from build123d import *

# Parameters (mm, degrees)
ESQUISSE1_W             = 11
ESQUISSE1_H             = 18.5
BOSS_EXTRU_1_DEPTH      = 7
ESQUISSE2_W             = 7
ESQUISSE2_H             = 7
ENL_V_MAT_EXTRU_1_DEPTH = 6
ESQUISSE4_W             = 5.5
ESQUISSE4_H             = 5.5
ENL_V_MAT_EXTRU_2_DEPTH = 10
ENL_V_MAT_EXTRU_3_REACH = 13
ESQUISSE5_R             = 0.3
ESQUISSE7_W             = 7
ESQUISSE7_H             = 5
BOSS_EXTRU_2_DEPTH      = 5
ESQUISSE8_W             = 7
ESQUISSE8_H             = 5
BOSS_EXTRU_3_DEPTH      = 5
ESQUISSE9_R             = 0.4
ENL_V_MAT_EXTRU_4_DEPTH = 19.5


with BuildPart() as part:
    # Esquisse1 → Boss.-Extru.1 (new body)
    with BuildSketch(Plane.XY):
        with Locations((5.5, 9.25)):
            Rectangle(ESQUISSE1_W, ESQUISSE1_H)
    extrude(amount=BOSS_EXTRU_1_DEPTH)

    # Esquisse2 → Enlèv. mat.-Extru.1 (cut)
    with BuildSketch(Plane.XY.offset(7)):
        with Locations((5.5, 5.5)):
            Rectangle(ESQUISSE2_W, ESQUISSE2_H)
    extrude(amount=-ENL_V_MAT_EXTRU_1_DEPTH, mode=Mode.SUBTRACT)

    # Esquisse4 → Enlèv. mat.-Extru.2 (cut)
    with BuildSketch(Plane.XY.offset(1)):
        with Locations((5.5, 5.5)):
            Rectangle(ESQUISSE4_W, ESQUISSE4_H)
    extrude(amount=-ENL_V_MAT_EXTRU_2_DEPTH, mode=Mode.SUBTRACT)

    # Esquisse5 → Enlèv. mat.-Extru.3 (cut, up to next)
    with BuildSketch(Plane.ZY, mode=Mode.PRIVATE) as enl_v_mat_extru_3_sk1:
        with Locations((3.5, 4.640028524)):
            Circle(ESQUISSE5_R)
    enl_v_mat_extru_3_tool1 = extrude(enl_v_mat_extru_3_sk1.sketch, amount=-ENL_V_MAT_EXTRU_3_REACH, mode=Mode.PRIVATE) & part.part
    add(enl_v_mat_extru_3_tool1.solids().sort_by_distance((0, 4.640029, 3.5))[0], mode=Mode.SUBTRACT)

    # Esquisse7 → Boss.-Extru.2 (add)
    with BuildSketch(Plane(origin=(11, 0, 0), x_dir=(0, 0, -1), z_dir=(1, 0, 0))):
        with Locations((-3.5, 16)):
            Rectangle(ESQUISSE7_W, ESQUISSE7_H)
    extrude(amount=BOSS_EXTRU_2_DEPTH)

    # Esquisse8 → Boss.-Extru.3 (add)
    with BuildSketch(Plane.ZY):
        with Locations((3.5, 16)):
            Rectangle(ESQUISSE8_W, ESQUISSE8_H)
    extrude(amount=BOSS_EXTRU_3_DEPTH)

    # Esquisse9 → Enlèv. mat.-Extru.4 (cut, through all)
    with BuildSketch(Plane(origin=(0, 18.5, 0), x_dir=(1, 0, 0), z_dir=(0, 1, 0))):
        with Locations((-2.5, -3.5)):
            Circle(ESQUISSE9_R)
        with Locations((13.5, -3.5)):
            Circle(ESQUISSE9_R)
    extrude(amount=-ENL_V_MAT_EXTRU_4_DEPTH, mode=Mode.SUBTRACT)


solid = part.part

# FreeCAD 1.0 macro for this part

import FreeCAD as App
import Part
import Sketcher
from FreeCAD import Vector


def add_polygon(sketch, points):
    """Adds a closed chain of lines whose ends are joined by coincident constraints."""
    first, n = sketch.GeometryCount, len(points)
    for a, b in zip(points, points[1:] + points[:1]):
        sketch.addGeometry(Part.LineSegment(App.Vector(*a, 0), App.Vector(*b, 0)), False)
    for i in range(n):
        sketch.addConstraint(Sketcher.Constraint("Coincident", first + i, 2, first + (i + 1) % n, 1))

doc = App.newDocument("Part")
params = doc.addObject("Spreadsheet::Sheet", "Params")
for row, (alias, value) in enumerate([
    ("sketch1_width", "11 mm"),
    ("sketch1_height", "18.5 mm"),
    ("pad1_length", "7 mm"),
    ("sketch2_width", "7 mm"),
    ("pocket1_length", "6 mm"),
    ("sketch3_width", "5.5 mm"),
    ("pocket2_length", "10 mm"),
    ("sketch4_diameter", "0.6 mm"),
    ("sketch5_width", "5 mm"),
    ("sketch5_height", "7 mm"),
    ("pad2_length", "5 mm"),
    ("sketch6_width", "5 mm"),
    ("sketch6_height", "7 mm"),
    ("pad3_length", "5 mm"),
    ("sketch7_diameter", "0.8 mm"),
], start=1):
    params.set(f"A{row}", alias)
    params.set(f"B{row}", "=" + value)
    params.setAlias(f"B{row}", alias)

body = doc.addObject("PartDesign::Body", "Body")

sketch1 = body.newObject("Sketcher::SketchObject", "Sketch")
sketch1.AttachmentSupport = (doc.getObject("XY_Plane"), [""])
sketch1.MapMode = "FlatFace"
add_polygon(sketch1, [(0, 18), (0, 0), (11, 0), (11, 18)])
sketch1.addConstraint(Sketcher.Constraint("Vertical", 0))
sketch1.addConstraint(Sketcher.Constraint("Horizontal", 1))
sketch1.addConstraint(Sketcher.Constraint("Vertical", 2))
sketch1.addConstraint(Sketcher.Constraint("Horizontal", 3))
sketch1.addConstraint(Sketcher.Constraint("Coincident", 0, 2, -1, 1))
sketch1.addConstraint(Sketcher.Constraint("DistanceX", 1, 1, 1, 2, 11.0))
sketch1.addConstraint(Sketcher.Constraint("DistanceY", 0, 2, 0, 1, 18.5))
sketch1.setExpression("Constraints[9]", "Params.sketch1_width")
sketch1.setExpression("Constraints[10]", "Params.sketch1_height")
pad1 = body.newObject("PartDesign::Pad", "Pad")
pad1.Profile = sketch1
pad1.setExpression("Length", "Params.pad1_length")

sketch2 = body.newObject("Sketcher::SketchObject", "Sketch001")
sketch2.AttachmentSupport = (doc.getObject("XY_Plane"), [""])
sketch2.MapMode = "FlatFace"
sketch2.AttachmentOffset = App.Placement(Vector(0, 0, 7), App.Rotation())
add_polygon(sketch2, [(2, 9), (2, 2), (9, 2), (9, 9)])
sketch2.addConstraint(Sketcher.Constraint("Vertical", 0))
sketch2.addConstraint(Sketcher.Constraint("Horizontal", 1))
sketch2.addConstraint(Sketcher.Constraint("Vertical", 2))
sketch2.addConstraint(Sketcher.Constraint("Horizontal", 3))
sketch2.addConstraint(Sketcher.Constraint("Equal", 3, 0))
sketch2.addConstraint(Sketcher.Constraint("DistanceX", 1, 1, 1, 2, 7.0))
sketch2.addConstraint(Sketcher.Constraint("DistanceX", -1, 1, 0, 2, 2.0))
sketch2.addConstraint(Sketcher.Constraint("DistanceY", -1, 1, 0, 2, 2.0))
sketch2.setExpression("Constraints[9]", "Params.sketch2_width")
pocket1 = body.newObject("PartDesign::Pocket", "Pocket")
pocket1.Profile = sketch2
pocket1.setExpression("Length", "Params.pocket1_length")

sketch3 = body.newObject("Sketcher::SketchObject", "Sketch002")
sketch3.AttachmentSupport = (doc.getObject("XY_Plane"), [""])
sketch3.MapMode = "FlatFace"
sketch3.AttachmentOffset = App.Placement(Vector(0, 0, 1), App.Rotation())
add_polygon(sketch3, [(3, 8), (3, 3), (8, 3), (8, 8)])
sketch3.addConstraint(Sketcher.Constraint("Vertical", 0))
sketch3.addConstraint(Sketcher.Constraint("Horizontal", 1))
sketch3.addConstraint(Sketcher.Constraint("Vertical", 2))
sketch3.addConstraint(Sketcher.Constraint("Horizontal", 3))
sketch3.addConstraint(Sketcher.Constraint("Equal", 3, 0))
sketch3.addConstraint(Sketcher.Constraint("DistanceX", 1, 1, 1, 2, 5.5))
sketch3.addConstraint(Sketcher.Constraint("DistanceX", -1, 1, 0, 2, 2.75))
sketch3.addConstraint(Sketcher.Constraint("DistanceY", -1, 1, 0, 2, 2.75))
sketch3.setExpression("Constraints[9]", "Params.sketch3_width")
pocket2 = body.newObject("PartDesign::Pocket", "Pocket001")
pocket2.Profile = sketch3
pocket2.setExpression("Length", "Params.pocket2_length")

sketch4 = body.newObject("Sketcher::SketchObject", "Sketch003")
sketch4.AttachmentSupport = (doc.getObject("YZ_Plane"), [""])
sketch4.MapMode = "FlatFace"
sketch4.addGeometry(Part.Circle(Vector(4.64, 3.5, 0), Vector(0, 0, 1), 0.3), False)
sketch4.addConstraint(Sketcher.Constraint("Diameter", 0, 0.6))
sketch4.addConstraint(Sketcher.Constraint("DistanceY", -1, 1, 0, 3, 3.5))
sketch4.addConstraint(Sketcher.Constraint("DistanceX", -1, 1, 0, 3, 4.640029))
sketch4.setExpression("Constraints[0]", "Params.sketch4_diameter")
pocket3 = body.newObject("PartDesign::Pocket", "Pocket002")
pocket3.Profile = sketch4
pocket3.Type = "UpToFirst"
pocket3.Reversed = True

sketch5 = body.newObject("Sketcher::SketchObject", "Sketch004")
sketch5.AttachmentSupport = (doc.getObject("YZ_Plane"), [""])
sketch5.MapMode = "FlatFace"
sketch5.AttachmentOffset = App.Placement(Vector(0, 0, 11), App.Rotation())
add_polygon(sketch5, [(18, 7), (14, 7), (14, 0), (18, 0)])
sketch5.addConstraint(Sketcher.Constraint("Horizontal", 0))
sketch5.addConstraint(Sketcher.Constraint("Vertical", 1))
sketch5.addConstraint(Sketcher.Constraint("Horizontal", 2))
sketch5.addConstraint(Sketcher.Constraint("Vertical", 3))
sketch5.addConstraint(Sketcher.Constraint("PointOnObject", 1, 2, -1))
sketch5.addConstraint(Sketcher.Constraint("DistanceX", 0, 2, 0, 1, 5.0))
sketch5.addConstraint(Sketcher.Constraint("DistanceY", 1, 2, 1, 1, 7.0))
sketch5.addConstraint(Sketcher.Constraint("DistanceX", -1, 1, 0, 2, 13.5))
sketch5.setExpression("Constraints[9]", "Params.sketch5_width")
sketch5.setExpression("Constraints[10]", "Params.sketch5_height")
pad2 = body.newObject("PartDesign::Pad", "Pad001")
pad2.Profile = sketch5
pad2.setExpression("Length", "Params.pad2_length")

sketch6 = body.newObject("Sketcher::SketchObject", "Sketch005")
sketch6.AttachmentSupport = (doc.getObject("YZ_Plane"), [""])
sketch6.MapMode = "FlatFace"
add_polygon(sketch6, [(18, 0), (14, 0), (14, 7), (18, 7)])
sketch6.addConstraint(Sketcher.Constraint("Horizontal", 0))
sketch6.addConstraint(Sketcher.Constraint("Vertical", 1))
sketch6.addConstraint(Sketcher.Constraint("Horizontal", 2))
sketch6.addConstraint(Sketcher.Constraint("Vertical", 3))
sketch6.addConstraint(Sketcher.Constraint("PointOnObject", 0, 2, -1))
sketch6.addConstraint(Sketcher.Constraint("DistanceX", 0, 2, 0, 1, 5.0))
sketch6.addConstraint(Sketcher.Constraint("DistanceY", 1, 1, 1, 2, 7.0))
sketch6.addConstraint(Sketcher.Constraint("DistanceX", -1, 1, 0, 2, 13.5))
sketch6.setExpression("Constraints[9]", "Params.sketch6_width")
sketch6.setExpression("Constraints[10]", "Params.sketch6_height")
pad3 = body.newObject("PartDesign::Pad", "Pad002")
pad3.Profile = sketch6
pad3.setExpression("Length", "Params.pad3_length")
pad3.Reversed = True

sketch7 = body.newObject("Sketcher::SketchObject", "Sketch006")
sketch7.AttachmentSupport = (doc.getObject("XZ_Plane"), [""])
sketch7.MapMode = "FlatFace"
sketch7.AttachmentOffset = App.Placement(Vector(0, 0, -18.5), App.Rotation())
sketch7.addGeometry(Part.Circle(Vector(-2.5, 3.5, 0), Vector(0, 0, 1), 0.4), False)
sketch7.addGeometry(Part.Circle(Vector(13.5, 3.5, 0), Vector(0, 0, 1), 0.4), False)
sketch7.addConstraint(Sketcher.Constraint("Equal", 0, 1))
sketch7.addConstraint(Sketcher.Constraint("Horizontal", 0, 3, 1, 3))
sketch7.addConstraint(Sketcher.Constraint("Diameter", 0, 0.8))
sketch7.addConstraint(Sketcher.Constraint("DistanceX", 0, 3, 1, 3, 16.0))
sketch7.addConstraint(Sketcher.Constraint("DistanceX", 0, 3, -1, 1, 2.5))
sketch7.addConstraint(Sketcher.Constraint("DistanceY", -1, 1, 0, 3, 3.5))
sketch7.setExpression("Constraints[2]", "Params.sketch7_diameter")
pocket4 = body.newObject("PartDesign::Pocket", "Pocket003")
pocket4.Profile = sketch7
pocket4.Type = "ThroughAll"
pocket4.Reversed = True

doc.recompute()
